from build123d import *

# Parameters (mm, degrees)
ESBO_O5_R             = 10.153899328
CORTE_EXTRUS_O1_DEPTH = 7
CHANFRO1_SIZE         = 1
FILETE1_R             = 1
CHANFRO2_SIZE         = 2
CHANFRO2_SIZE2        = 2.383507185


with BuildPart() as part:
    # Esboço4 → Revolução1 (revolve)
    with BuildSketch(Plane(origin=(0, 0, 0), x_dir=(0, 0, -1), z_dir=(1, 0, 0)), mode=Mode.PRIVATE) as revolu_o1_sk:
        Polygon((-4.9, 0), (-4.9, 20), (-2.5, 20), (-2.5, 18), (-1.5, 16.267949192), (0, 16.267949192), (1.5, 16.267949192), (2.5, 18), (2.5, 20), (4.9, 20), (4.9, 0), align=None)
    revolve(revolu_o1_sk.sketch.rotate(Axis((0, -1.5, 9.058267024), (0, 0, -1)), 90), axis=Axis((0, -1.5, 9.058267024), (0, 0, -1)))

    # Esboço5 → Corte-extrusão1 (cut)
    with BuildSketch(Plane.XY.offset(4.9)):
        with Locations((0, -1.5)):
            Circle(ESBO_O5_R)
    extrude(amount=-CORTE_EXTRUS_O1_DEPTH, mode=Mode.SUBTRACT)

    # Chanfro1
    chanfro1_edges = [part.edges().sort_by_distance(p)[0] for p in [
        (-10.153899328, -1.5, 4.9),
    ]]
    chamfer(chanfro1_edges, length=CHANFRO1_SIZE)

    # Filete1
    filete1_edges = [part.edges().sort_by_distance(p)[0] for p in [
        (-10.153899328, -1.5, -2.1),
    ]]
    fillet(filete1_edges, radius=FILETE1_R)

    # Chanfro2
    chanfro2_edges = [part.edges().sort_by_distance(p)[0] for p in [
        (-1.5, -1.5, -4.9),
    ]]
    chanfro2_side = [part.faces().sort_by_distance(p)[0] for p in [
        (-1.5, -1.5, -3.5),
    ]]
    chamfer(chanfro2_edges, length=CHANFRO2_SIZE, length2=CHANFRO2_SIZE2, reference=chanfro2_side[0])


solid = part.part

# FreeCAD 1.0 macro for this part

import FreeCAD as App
import Part
import Sketcher
from FreeCAD import Vector
Q = App.Units.Quantity


def edges_at(feature, points):
    """Names of the edges that pass closest to the given points."""
    edges = feature.Shape.Edges
    near = lambda p: min(range(len(edges)), key=lambda i: edges[i].distToShape(Part.Vertex(*p))[0])
    return sorted({f"Edge{near(p) + 1}" for p in points})

doc = App.newDocument("Part")
params = doc.addObject("Spreadsheet::Sheet", "Params")
for row, (alias, value) in enumerate([
    ("sketch1_width", "20 mm"),
    ("sketch1_width2", "2 mm"),
    ("sketch1_height", "3 mm"),
    ("sketch1_length", "2 mm"),
    ("sketch1_height2", "9.8 mm"),
    ("revolution_angle", "360 deg"),
    ("pocket1_length", "7 mm"),
    ("chamfer_size", "1 mm"),
    ("fillet_radius", "1 mm"),
    ("chamfer2_size", "2 mm"),
    ("chamfer2_size2", "2.383507 mm"),
], start=1):
    params.set(f"A{row}", alias)
    params.set(f"B{row}", "=" + value)
    params.setAlias(f"B{row}", alias)

body = doc.addObject("PartDesign::Body", "Body")

# Sketch on YZ plane
sketch1 = body.newObject("Sketcher::SketchObject", "Sketch")
sketch1.AttachmentSupport = (doc.getObject("YZ_Plane"), [""])
sketch1.MapMode = "FlatFace"
sketch1.addGeometry([
    Part.LineSegment(Vector(20, 4.9, 0), Vector(0, 4.9, 0)),  # 0
    Part.LineSegment(Vector(0, 4.9, 0), Vector(0, -4.9, 0)),  # 1
    Part.LineSegment(Vector(0, -4.9, 0), Vector(20, -4.9, 0)),  # 2
    Part.LineSegment(Vector(20, -4.9, 0), Vector(20, -2.5, 0)),  # 3
    Part.LineSegment(Vector(20, -2.5, 0), Vector(18, -2.5, 0)),  # 4
    Part.LineSegment(Vector(18, -2.5, 0), Vector(16.267949, -1.5, 0)),  # 5
    Part.LineSegment(Vector(16.267949, -1.5, 0), Vector(16.267949, 1.5, 0)),  # 6
    Part.LineSegment(Vector(16.267949, 1.5, 0), Vector(18, 2.5, 0)),  # 7
    Part.LineSegment(Vector(18, 2.5, 0), Vector(20, 2.5, 0)),  # 8
    Part.LineSegment(Vector(20, 2.5, 0), Vector(20, 4.9, 0)),  # 9
], False)
sketch1.addGeometry(Part.LineSegment(Vector(-1.5, 4.9, 0), Vector(-1.5, -4.9, 0)), True)  # axis
sketch1.addConstraint([
    Sketcher.Constraint("Coincident", 0, 2, 1, 1),
    Sketcher.Constraint("Coincident", 1, 2, 2, 1),
    Sketcher.Constraint("Coincident", 2, 2, 3, 1),
    Sketcher.Constraint("Coincident", 3, 2, 4, 1),
    Sketcher.Constraint("Coincident", 4, 2, 5, 1),
    Sketcher.Constraint("Coincident", 5, 2, 6, 1),
    Sketcher.Constraint("Coincident", 6, 2, 7, 1),
    Sketcher.Constraint("Coincident", 7, 2, 8, 1),
    Sketcher.Constraint("Coincident", 8, 2, 9, 1),
    Sketcher.Constraint("Coincident", 9, 2, 0, 1),
    Sketcher.Constraint("Horizontal", 0),
    Sketcher.Constraint("Vertical", 1),
    Sketcher.Constraint("Horizontal", 2),
    Sketcher.Constraint("Vertical", 3),
    Sketcher.Constraint("Horizontal", 4),
    Sketcher.Constraint("Vertical", 6),
    Sketcher.Constraint("Horizontal", 8),
    Sketcher.Constraint("Vertical", 9),
    Sketcher.Constraint("Vertical", 10),
    Sketcher.Constraint("Symmetric", 0, 2, 1, 2, -1, 1),
    Sketcher.Constraint("Symmetric", 4, 2, 7, 2, -1),
    Sketcher.Constraint("Horizontal", 9, 2, 10, 1),
    Sketcher.Constraint("Horizontal", 2, 2, 10, 2),
    Sketcher.Constraint("Vertical", 3, 2, 8, 2),
    Sketcher.Constraint("Equal", 5, 7),
    Sketcher.Constraint("DistanceX", 0, 2, 0, 1, Q("20 mm")),
    Sketcher.Constraint("DistanceX", 4, 2, 4, 1, Q("2 mm")),
    Sketcher.Constraint("DistanceY", 6, 1, 6, 2, Q("3 mm")),
    Sketcher.Constraint("Angle", 5, Q("150 deg")),
    Sketcher.Constraint("Distance", 5, Q("2 mm")),
    Sketcher.Constraint("DistanceY", 1, 2, 1, 1, Q("9.8 mm")),
    Sketcher.Constraint("DistanceX", 10, 1, -1, 1, Q("1.5 mm")),
])
sketch1.setExpression("Constraints[25]", "Params.sketch1_width")
sketch1.setExpression("Constraints[26]", "Params.sketch1_width2")
sketch1.setExpression("Constraints[27]", "Params.sketch1_height")
sketch1.setExpression("Constraints[29]", "Params.sketch1_length")
sketch1.setExpression("Constraints[30]", "Params.sketch1_height2")
revolution = body.newObject("PartDesign::Revolution", "Revolution")
revolution.Profile = sketch1
revolution.ReferenceAxis = (sketch1, ["Axis0"])
revolution.setExpression("Angle", "Params.revolution_angle")

# Sketch on XY plane
sketch2 = body.newObject("Sketcher::SketchObject", "Sketch001")
sketch2.AttachmentSupport = (doc.getObject("XY_Plane"), [""])
sketch2.MapMode = "FlatFace"
sketch2.AttachmentOffset = App.Placement(Vector(0, 0, 4.9), App.Rotation())
sketch2.addGeometry(Part.Circle(Vector(0, -1.5, 0), Vector(0, 0, 1), 10.153899), False)
sketch2.addConstraint([
    Sketcher.Constraint("PointOnObject", 0, 3, -2),
    Sketcher.Constraint("Diameter", 0, Q("20.307799 mm")),
    Sketcher.Constraint("DistanceY", 0, 3, -1, 1, Q("1.5 mm")),
])
pocket1 = body.newObject("PartDesign::Pocket", "Pocket")
pocket1.Profile = sketch2
pocket1.setExpression("Length", "Params.pocket1_length")
doc.recompute()

chamfer = body.newObject("PartDesign::Chamfer", "Chamfer")
chamfer.Base = (pocket1, edges_at(pocket1, [(-10.154, -1.5, 4.9)]))
chamfer.setExpression("Size", "Params.chamfer_size")
doc.recompute()

fillet = body.newObject("PartDesign::Fillet", "Fillet")
fillet.Base = (chamfer, edges_at(chamfer, [(-10.154, -1.5, -2.1)]))
fillet.setExpression("Radius", "Params.fillet_radius")
doc.recompute()

chamfer2 = body.newObject("PartDesign::Chamfer", "Chamfer001")
chamfer2.Base = (fillet, edges_at(fillet, [(-1.5, -1.5, -4.9)]))
chamfer2.ChamferType = "Two distances"
chamfer2.setExpression("Size", "Params.chamfer2_size")
chamfer2.setExpression("Size2", "Params.chamfer2_size2")

doc.recompute()
